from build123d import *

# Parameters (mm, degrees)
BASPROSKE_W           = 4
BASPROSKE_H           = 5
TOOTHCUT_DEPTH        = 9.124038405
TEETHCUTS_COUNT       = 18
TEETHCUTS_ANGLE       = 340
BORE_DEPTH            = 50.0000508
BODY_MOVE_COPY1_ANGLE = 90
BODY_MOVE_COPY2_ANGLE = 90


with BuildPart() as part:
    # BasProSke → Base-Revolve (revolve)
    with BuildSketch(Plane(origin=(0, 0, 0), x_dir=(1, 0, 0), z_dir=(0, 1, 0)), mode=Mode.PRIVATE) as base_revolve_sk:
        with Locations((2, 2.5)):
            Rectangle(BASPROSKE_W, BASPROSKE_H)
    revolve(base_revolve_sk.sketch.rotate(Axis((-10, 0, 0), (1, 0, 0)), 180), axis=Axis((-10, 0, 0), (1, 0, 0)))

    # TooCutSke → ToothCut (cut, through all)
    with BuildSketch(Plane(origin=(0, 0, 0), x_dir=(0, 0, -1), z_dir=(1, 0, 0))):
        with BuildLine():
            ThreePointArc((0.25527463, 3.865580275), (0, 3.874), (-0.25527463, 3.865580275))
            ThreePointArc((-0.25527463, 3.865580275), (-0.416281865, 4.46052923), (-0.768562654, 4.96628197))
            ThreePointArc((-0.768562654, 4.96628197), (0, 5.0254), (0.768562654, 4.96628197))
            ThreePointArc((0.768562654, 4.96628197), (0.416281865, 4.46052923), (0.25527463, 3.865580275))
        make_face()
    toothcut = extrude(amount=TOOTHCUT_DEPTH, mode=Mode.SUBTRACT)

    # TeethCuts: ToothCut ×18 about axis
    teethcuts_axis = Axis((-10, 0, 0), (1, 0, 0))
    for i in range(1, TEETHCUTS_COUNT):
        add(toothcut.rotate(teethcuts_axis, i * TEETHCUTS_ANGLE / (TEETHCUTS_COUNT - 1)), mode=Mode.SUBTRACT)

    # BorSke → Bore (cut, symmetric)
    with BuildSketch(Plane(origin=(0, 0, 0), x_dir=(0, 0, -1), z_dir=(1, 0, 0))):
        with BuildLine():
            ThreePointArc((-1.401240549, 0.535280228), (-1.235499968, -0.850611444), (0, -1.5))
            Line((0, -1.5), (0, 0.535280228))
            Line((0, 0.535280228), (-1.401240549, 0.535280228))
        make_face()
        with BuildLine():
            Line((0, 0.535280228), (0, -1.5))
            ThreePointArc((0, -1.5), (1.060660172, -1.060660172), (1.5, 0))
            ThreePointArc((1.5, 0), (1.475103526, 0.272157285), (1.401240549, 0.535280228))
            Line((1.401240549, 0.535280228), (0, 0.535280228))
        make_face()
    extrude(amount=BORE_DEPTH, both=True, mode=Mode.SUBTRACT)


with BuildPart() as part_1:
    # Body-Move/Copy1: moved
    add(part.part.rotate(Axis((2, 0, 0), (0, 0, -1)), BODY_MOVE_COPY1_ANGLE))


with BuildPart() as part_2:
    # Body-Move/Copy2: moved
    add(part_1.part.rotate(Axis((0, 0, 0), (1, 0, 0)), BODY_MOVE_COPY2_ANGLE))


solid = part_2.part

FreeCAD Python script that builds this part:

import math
import FreeCAD as App
import Part
import Sketcher
Q = App.Units.Quantity


def add_polygon(sketch, points):
    """Adds a closed chain of lines whose ends are joined by coincident constraints."""
    first, n = sketch.GeometryCount, len(points)
    for a, b in zip(points, points[1:] + points[:1]):
        sketch.addGeometry(Part.LineSegment(App.Vector(*a, 0), App.Vector(*b, 0)), False)
    for i in range(n):
        sketch.addConstraint(Sketcher.Constraint("Coincident", first + i, 2, first + (i + 1) % n, 1))

doc = App.newDocument("Part")
params = doc.addObject("Spreadsheet::Sheet", "Params")
for row, (alias, value) in enumerate([
    ("sketch1_width", "4 mm"),
    ("sketch1_height", "5 mm"),
    ("revolution_angle", "360 deg"),
    ("sketch2_radius", "1.8 mm"),
    ("sketch3_radius", "1.5 mm"),
    ("pocket2_length", "100.000102 mm"),
], start=1):
    params.set(f"A{row}", alias)
    params.set(f"B{row}", "=" + value)
    params.setAlias(f"B{row}", alias)

body = doc.addObject("PartDesign::Body", "Body")

sketch1 = body.newObject("Sketcher::SketchObject", "Sketch")
sketch1.AttachmentSupport = (doc.getObject("XZ_Plane"), [""])
sketch1.MapMode = "FlatFace"
add_polygon(sketch1, [(0, -5), (0, 0), (4, 0), (4, -5)])
sketch1.addConstraint([
    Sketcher.Constraint("Vertical", 0),
    Sketcher.Constraint("Horizontal", 1),
    Sketcher.Constraint("Vertical", 2),
    Sketcher.Constraint("Horizontal", 3),
    Sketcher.Constraint("Coincident", 0, 2, -1, 1),
    Sketcher.Constraint("DistanceX", 1, 1, 1, 2, Q("4 mm")),
    Sketcher.Constraint("DistanceY", 0, 1, 0, 2, Q("5 mm")),
])
sketch1.setExpression("Constraints[9]", "Params.sketch1_width")
sketch1.setExpression("Constraints[10]", "Params.sketch1_height")
revolution = body.newObject("PartDesign::Revolution", "Revolution")
revolution.Profile = sketch1
revolution.ReferenceAxis = (sketch1, ["H_Axis"])
revolution.setExpression("Angle", "Params.revolution_angle")

sketch2 = body.newObject("Sketcher::SketchObject", "Sketch001")
sketch2.AttachmentSupport = (doc.getObject("YZ_Plane"), [""])
sketch2.MapMode = "FlatFace"
sketch2.addGeometry([
    Part.ArcOfCircle(Part.Circle(App.Vector(0, 0, 0), App.Vector(0, 0, 1), 3.9), math.radians(-3.78), math.radians(3.78)),
    Part.ArcOfCircle(Part.Circle(App.Vector(3.7, -2, 0), App.Vector(0, 0, 1), 1.8), math.radians(45), math.radians(85)),
    Part.ArcOfCircle(Part.Circle(App.Vector(0, 0, 0), App.Vector(0, 0, 1), 5), math.radians(-8.8), math.radians(8.8)),
    Part.ArcOfCircle(Part.Circle(App.Vector(3.7, 2, 0), App.Vector(0, 0, 1), 1.8), math.radians(-85), math.radians(-45)),
], False)
sketch2.addConstraint([
    Sketcher.Constraint("Coincident", 0, 1, 1, 2),
    Sketcher.Constraint("Coincident", 1, 1, 2, 1),
    Sketcher.Constraint("Coincident", 2, 2, 3, 2),
    Sketcher.Constraint("Coincident", 3, 1, 0, 2),
    Sketcher.Constraint("Coincident", 0, 3, -1, 1),
    Sketcher.Constraint("Coincident", 2, 3, -1, 1),
    Sketcher.Constraint("Equal", 1, 3),
    Sketcher.Constraint("Symmetric", 1, 3, 3, 3, -1),
    Sketcher.Constraint("Radius", 1, Q("1.8 mm")),
    Sketcher.Constraint("Radius", 0, Q("3.874 mm")),
    Sketcher.Constraint("Radius", 2, Q("5.0254 mm")),
    Sketcher.Constraint("DistanceX", 0, 1, 1, 1, Q("1.100702 mm")),
    Sketcher.Constraint("DistanceX", -1, 1, 1, 3, Q("3.699789 mm")),
])
sketch2.setExpression("Constraints[8]", "Params.sketch2_radius")
pocket1 = body.newObject("PartDesign::Pocket", "Pocket")
pocket1.Profile = sketch2
pocket1.Type = "ThroughAll"
pocket1.Reversed = True
doc.recompute()

polarpattern = body.newObject("PartDesign::PolarPattern", "PolarPattern")
polarpattern.Originals = [pocket1]
polarpattern.Axis = (doc.getObject("X_Axis"), [""])
polarpattern.Angle = 360
polarpattern.Occurrences = 18
body.Tip = polarpattern

sketch3 = body.newObject("Sketcher::SketchObject", "Sketch002")
sketch3.AttachmentSupport = (doc.getObject("YZ_Plane"), [""])
sketch3.MapMode = "FlatFace"
sketch3.addGeometry([
    Part.ArcOfCircle(Part.Circle(App.Vector(0, 0, 0), App.Vector(0, 0, 1), 1.5), math.radians(69), math.radians(180)),
    Part.ArcOfCircle(Part.Circle(App.Vector(0, 0, 0), App.Vector(0, 0, 1), 1.5), math.radians(180), math.radians(270)),
    Part.ArcOfCircle(Part.Circle(App.Vector(0, 0, 0), App.Vector(0, 0, 1), 1.5), math.radians(-90), math.radians(-69)),
    Part.LineSegment(App.Vector(0.5, -1.4, 0), App.Vector(0.5, 1.4, 0)),
], False)
sketch3.addConstraint([
    Sketcher.Constraint("Tangent", 0, 2, 1, 1),
    Sketcher.Constraint("Tangent", 1, 2, 2, 1),
    Sketcher.Constraint("Coincident", 2, 2, 3, 1),
    Sketcher.Constraint("Coincident", 3, 2, 0, 1),
    Sketcher.Constraint("Vertical", 3),
    Sketcher.Constraint("Coincident", 0, 3, -1, 1),
    Sketcher.Constraint("Coincident", 2, 3, -1, 1),
    Sketcher.Constraint("PointOnObject", 0, 2, -1),
    Sketcher.Constraint("PointOnObject", 1, 2, -2),
    Sketcher.Constraint("Radius", 0, Q("1.5 mm")),
    Sketcher.Constraint("DistanceY", 3, 1, 3, 2, Q("2.802481 mm")),
])
sketch3.setExpression("Constraints[9]", "Params.sketch3_radius")
pocket2 = body.newObject("PartDesign::Pocket", "Pocket001")
pocket2.Profile = sketch3
pocket2.setExpression("Length", "Params.pocket2_length")
pocket2.Midplane = True
body2 = doc.addObject("PartDesign::Body", "Body001")
doc.recompute()

body.Placement = App.Placement(App.Vector(2, 2, 0), App.Rotation(App.Vector(0, 0, -1), 90))
boolean = body2.newObject("PartDesign::Boolean", "Boolean")
boolean.Type = "Fuse"
boolean.addObjects([body])
body3 = doc.addObject("PartDesign::Body", "Body002")
doc.recompute()

body2.Placement = App.Placement(App.Vector(0, 0, 0), App.Rotation(App.Vector(1, 0, 0), 90))
boolean2 = body3.newObject("PartDesign::Boolean", "Boolean001")
boolean2.Type = "Fuse"
boolean2.addObjects([body2])

doc.recompute()
